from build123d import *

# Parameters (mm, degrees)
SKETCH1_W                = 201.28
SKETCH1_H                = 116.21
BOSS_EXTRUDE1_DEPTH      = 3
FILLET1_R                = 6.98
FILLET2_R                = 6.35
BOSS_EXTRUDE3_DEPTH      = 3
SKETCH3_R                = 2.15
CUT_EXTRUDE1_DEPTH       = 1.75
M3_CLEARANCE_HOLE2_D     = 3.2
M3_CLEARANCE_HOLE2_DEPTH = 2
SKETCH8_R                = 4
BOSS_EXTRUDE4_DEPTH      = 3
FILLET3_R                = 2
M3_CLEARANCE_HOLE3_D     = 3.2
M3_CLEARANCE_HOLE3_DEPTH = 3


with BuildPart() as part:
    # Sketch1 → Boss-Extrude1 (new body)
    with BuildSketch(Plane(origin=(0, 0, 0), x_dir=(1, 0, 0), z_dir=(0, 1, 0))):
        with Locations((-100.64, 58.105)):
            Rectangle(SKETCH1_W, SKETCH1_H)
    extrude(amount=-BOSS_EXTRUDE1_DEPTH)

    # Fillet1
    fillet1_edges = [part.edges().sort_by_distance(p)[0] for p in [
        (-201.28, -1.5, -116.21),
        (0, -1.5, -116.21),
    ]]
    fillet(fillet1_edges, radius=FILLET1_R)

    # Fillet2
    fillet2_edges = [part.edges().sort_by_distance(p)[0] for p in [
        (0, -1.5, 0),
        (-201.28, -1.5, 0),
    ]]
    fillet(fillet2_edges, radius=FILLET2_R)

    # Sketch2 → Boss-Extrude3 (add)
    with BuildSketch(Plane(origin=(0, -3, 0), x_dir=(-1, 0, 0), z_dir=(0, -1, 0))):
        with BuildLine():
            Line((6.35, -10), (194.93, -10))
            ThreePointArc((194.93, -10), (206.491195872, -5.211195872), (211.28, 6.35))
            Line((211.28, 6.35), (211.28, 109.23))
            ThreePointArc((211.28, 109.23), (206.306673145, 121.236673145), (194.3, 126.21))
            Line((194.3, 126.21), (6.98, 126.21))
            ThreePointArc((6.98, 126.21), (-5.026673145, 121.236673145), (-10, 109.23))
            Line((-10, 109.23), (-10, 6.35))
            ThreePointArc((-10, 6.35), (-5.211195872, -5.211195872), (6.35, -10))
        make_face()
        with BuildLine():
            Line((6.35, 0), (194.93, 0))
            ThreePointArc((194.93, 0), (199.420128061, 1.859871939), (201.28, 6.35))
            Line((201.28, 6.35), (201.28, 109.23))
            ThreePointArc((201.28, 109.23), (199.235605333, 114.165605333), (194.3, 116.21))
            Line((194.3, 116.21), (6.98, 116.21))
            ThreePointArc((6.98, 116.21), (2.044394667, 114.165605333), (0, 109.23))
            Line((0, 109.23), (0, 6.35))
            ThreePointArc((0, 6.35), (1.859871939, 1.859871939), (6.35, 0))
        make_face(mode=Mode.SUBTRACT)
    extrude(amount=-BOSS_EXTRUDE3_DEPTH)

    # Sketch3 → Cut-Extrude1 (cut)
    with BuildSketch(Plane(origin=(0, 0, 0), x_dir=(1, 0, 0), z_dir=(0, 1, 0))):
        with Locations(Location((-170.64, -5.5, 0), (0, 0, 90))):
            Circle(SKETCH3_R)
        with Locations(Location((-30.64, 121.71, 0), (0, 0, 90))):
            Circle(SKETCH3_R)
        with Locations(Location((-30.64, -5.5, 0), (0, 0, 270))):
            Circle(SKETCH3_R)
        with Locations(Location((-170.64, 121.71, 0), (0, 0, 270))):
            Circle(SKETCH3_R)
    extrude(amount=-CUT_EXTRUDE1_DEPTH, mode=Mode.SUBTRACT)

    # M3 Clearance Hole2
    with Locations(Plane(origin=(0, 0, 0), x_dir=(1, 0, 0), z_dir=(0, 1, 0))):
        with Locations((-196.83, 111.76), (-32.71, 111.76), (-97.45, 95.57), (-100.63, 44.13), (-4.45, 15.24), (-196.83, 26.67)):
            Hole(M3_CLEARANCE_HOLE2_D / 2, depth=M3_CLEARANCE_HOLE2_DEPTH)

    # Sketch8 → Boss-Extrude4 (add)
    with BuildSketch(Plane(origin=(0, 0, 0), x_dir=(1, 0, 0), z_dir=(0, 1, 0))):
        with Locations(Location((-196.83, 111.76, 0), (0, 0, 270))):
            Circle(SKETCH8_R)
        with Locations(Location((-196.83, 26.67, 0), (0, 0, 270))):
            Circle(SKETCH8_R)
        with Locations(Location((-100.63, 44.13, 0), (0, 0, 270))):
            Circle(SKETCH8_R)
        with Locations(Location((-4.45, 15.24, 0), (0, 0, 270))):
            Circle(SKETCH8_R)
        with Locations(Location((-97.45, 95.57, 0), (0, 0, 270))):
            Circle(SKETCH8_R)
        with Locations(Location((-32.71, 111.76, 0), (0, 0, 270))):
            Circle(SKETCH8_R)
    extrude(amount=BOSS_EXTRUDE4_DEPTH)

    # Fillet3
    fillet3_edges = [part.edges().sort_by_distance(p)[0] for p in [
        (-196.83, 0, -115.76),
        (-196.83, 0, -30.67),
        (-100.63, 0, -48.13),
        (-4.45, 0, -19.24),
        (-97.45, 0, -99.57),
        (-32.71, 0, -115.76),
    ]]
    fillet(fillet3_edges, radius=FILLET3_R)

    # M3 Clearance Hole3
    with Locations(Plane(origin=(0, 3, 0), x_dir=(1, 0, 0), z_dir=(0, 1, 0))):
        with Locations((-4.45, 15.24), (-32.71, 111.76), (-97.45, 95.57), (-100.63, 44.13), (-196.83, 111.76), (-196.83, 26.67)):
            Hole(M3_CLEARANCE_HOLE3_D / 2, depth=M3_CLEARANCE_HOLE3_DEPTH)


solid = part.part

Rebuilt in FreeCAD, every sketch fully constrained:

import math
import FreeCAD as App
import Part
import Sketcher


def edges_at(feature, points):
    """Names of the edges that pass closest to the given points."""
    edges = feature.Shape.Edges
    near = lambda p: min(range(len(edges)), key=lambda i: edges[i].distToShape(Part.Vertex(*p))[0])
    return sorted({f"Edge{near(p) + 1}" for p in points})


def add_polygon(sketch, points):
    """Adds a closed chain of lines whose ends are joined by coincident constraints."""
    first, n = sketch.GeometryCount, len(points)
    for a, b in zip(points, points[1:] + points[:1]):
        sketch.addGeometry(Part.LineSegment(App.Vector(*a, 0), App.Vector(*b, 0)), False)
    for i in range(n):
        sketch.addConstraint(Sketcher.Constraint("Coincident", first + i, 2, first + (i + 1) % n, 1))

doc = App.newDocument("Part")
params = doc.addObject("Spreadsheet::Sheet", "Params")
for row, (alias, value) in enumerate([
    ("sketch1_width", "201.28 mm"),
    ("sketch1_height", "116.21 mm"),
    ("pad1_length", "3 mm"),
    ("fillet_radius", "6.98 mm"),
    ("fillet2_radius", "6.35 mm"),
    ("sketch2_radius", "16.35 mm"),
    ("sketch2_radius2", "16.98 mm"),
    ("sketch2_radius3", "6.35 mm"),
    ("sketch2_width", "188.58 mm"),
    ("sketch2_height", "102.88 mm"),
    ("pad2_length", "3 mm"),
    ("sketch3_diameter", "4.3 mm"),
    ("pocket1_length", "1.75 mm"),
    ("sketch4_diameter", "3.2 mm"),
    ("hole_diameter", "3.2 mm"),
    ("hole_depth", "2 mm"),
    ("sketch5_diameter", "8 mm"),
    ("pad3_length", "3 mm"),
    ("fillet3_radius", "2 mm"),
    ("sketch6_diameter", "3.2 mm"),
    ("hole2_diameter", "3.2 mm"),
    ("hole2_depth", "3 mm"),
], start=1):
    params.set(f"A{row}", alias)
    params.set(f"B{row}", "=" + value)
    params.setAlias(f"B{row}", alias)

body = doc.addObject("PartDesign::Body", "Body")

sketch1 = body.newObject("Sketcher::SketchObject", "Sketch")
sketch1.AttachmentSupport = (doc.getObject("XZ_Plane"), [""])
sketch1.MapMode = "FlatFace"
add_polygon(sketch1, [(-201, -116), (-201, 0), (0, 0), (0, -116)])
sketch1.addConstraint([
    Sketcher.Constraint("Vertical", 0),
    Sketcher.Constraint("Horizontal", 1),
    Sketcher.Constraint("Vertical", 2),
    Sketcher.Constraint("Horizontal", 3),
    Sketcher.Constraint("Coincident", 1, 2, -1, 1),
    Sketcher.Constraint("DistanceX", 1, 1, 1, 2, 201.28),
    Sketcher.Constraint("DistanceY", 0, 1, 0, 2, 116.21),
])
sketch1.setExpression("Constraints[9]", "Params.sketch1_width")
sketch1.setExpression("Constraints[10]", "Params.sketch1_height")
pad1 = body.newObject("PartDesign::Pad", "Pad")
pad1.Profile = sketch1
pad1.setExpression("Length", "Params.pad1_length")
doc.recompute()

fillet = body.newObject("PartDesign::Fillet", "Fillet")
fillet.Base = (pad1, edges_at(pad1, [(-201.28, -1.5, -116.21), (0, -1.5, -116.21)]))
fillet.setExpression("Radius", "Params.fillet_radius")
doc.recompute()

fillet2 = body.newObject("PartDesign::Fillet", "Fillet001")
fillet2.Base = (fillet, edges_at(fillet, [(0, -1.5, 0), (-201.28, -1.5, 0)]))
fillet2.setExpression("Radius", "Params.fillet2_radius")

sketch2 = body.newObject("Sketcher::SketchObject", "Sketch001")
sketch2.AttachmentSupport = (doc.getObject("XZ_Plane"), [""])
sketch2.MapMode = "FlatFace"
sketch2.AttachmentOffset = App.Placement(App.Vector(0, 0, 3), App.Rotation())
sketch2.addGeometry([
    Part.LineSegment(App.Vector(-6, 10, 0), App.Vector(-195, 10, 0)),
    Part.ArcOfCircle(Part.Circle(App.Vector(-195, -6, 0), App.Vector(0, 0, 1), 16), math.radians(90), math.radians(180)),
    Part.LineSegment(App.Vector(-211, -6, 0), App.Vector(-211, -109, 0)),
    Part.ArcOfCircle(Part.Circle(App.Vector(-194, -109, 0), App.Vector(0, 0, 1), 17), math.radians(180), math.radians(270)),
    Part.LineSegment(App.Vector(-194, -126, 0), App.Vector(-7, -126, 0)),
    Part.ArcOfCircle(Part.Circle(App.Vector(-7, -109, 0), App.Vector(0, 0, 1), 17), math.radians(-90), math.radians(0)),
    Part.LineSegment(App.Vector(10, -109, 0), App.Vector(10, -6, 0)),
    Part.ArcOfCircle(Part.Circle(App.Vector(-6, -6, 0), App.Vector(0, 0, 1), 16), math.radians(0), math.radians(90)),
    Part.LineSegment(App.Vector(-195, 0, 0), App.Vector(-6, 0, 0)),
    Part.ArcOfCircle(Part.Circle(App.Vector(-6, -6, 0), App.Vector(0, 0, 1), 6), math.radians(0), math.radians(90)),
    Part.LineSegment(App.Vector(0, -6, 0), App.Vector(0, -109, 0)),
    Part.ArcOfCircle(Part.Circle(App.Vector(-7, -109, 0), App.Vector(0, 0, 1), 7), math.radians(-90), math.radians(0)),
    Part.LineSegment(App.Vector(-7, -116, 0), App.Vector(-194, -116, 0)),
    Part.ArcOfCircle(Part.Circle(App.Vector(-194, -109, 0), App.Vector(0, 0, 1), 7), math.radians(180), math.radians(270)),
    Part.LineSegment(App.Vector(-201, -109, 0), App.Vector(-201, -6, 0)),
    Part.ArcOfCircle(Part.Circle(App.Vector(-195, -6, 0), App.Vector(0, 0, 1), 6), math.radians(90), math.radians(180)),
], False)
sketch2.addConstraint([
    Sketcher.Constraint("Tangent", 0, 2, 1, 1),
    Sketcher.Constraint("Tangent", 1, 2, 2, 1),
    Sketcher.Constraint("Tangent", 2, 2, 3, 1),
    Sketcher.Constraint("Tangent", 3, 2, 4, 1),
    Sketcher.Constraint("Tangent", 4, 2, 5, 1),
    Sketcher.Constraint("Tangent", 5, 2, 6, 1),
    Sketcher.Constraint("Tangent", 6, 2, 7, 1),
    Sketcher.Constraint("Tangent", 7, 2, 0, 1),
    Sketcher.Constraint("Tangent", 8, 2, 9, 2),
    Sketcher.Constraint("Tangent", 9, 1, 10, 1),
    Sketcher.Constraint("Tangent", 10, 2, 11, 2),
    Sketcher.Constraint("Tangent", 11, 1, 12, 1),
    Sketcher.Constraint("Tangent", 12, 2, 13, 2),
    Sketcher.Constraint("Tangent", 13, 1, 14, 1),
    Sketcher.Constraint("Tangent", 14, 2, 15, 2),
    Sketcher.Constraint("Tangent", 15, 1, 8, 1),
    Sketcher.Constraint("Horizontal", 0),
    Sketcher.Constraint("Vertical", 2),
    Sketcher.Constraint("Horizontal", 4),
    Sketcher.Constraint("Vertical", 6),
    Sketcher.Constraint("Horizontal", 8),
    Sketcher.Constraint("Vertical", 10),
    Sketcher.Constraint("Horizontal", 12),
    Sketcher.Constraint("Vertical", 14),
    Sketcher.Constraint("Coincident", 9, 3, 7, 3),
    Sketcher.Constraint("Coincident", 11, 3, 5, 3),
    Sketcher.Constraint("Coincident", 13, 3, 3, 3),
    Sketcher.Constraint("Equal", 3, 5),
    Sketcher.Constraint("Equal", 1, 7),
    Sketcher.Constraint("Equal", 9, 15),
    Sketcher.Constraint("PointOnObject", 8, 2, -1),
    Sketcher.Constraint("PointOnObject", 9, 1, -2),
    Sketcher.Constraint("Radius", 1, 16.35),
    Sketcher.Constraint("Radius", 3, 16.98),
    Sketcher.Constraint("Radius", 9, 6.35),
    Sketcher.Constraint("DistanceX", 0, 2, 0, 1, 188.58),
    Sketcher.Constraint("DistanceY", 2, 2, 2, 1, 102.88),
])
sketch2.setExpression("Constraints[32]", "Params.sketch2_radius")
sketch2.setExpression("Constraints[33]", "Params.sketch2_radius2")
sketch2.setExpression("Constraints[34]", "Params.sketch2_radius3")
sketch2.setExpression("Constraints[35]", "Params.sketch2_width")
sketch2.setExpression("Constraints[36]", "Params.sketch2_height")
pad2 = body.newObject("PartDesign::Pad", "Pad001")
pad2.Profile = sketch2
pad2.setExpression("Length", "Params.pad2_length")
pad2.Reversed = True

sketch3 = body.newObject("Sketcher::SketchObject", "Sketch002")
sketch3.AttachmentSupport = (doc.getObject("XZ_Plane"), [""])
sketch3.MapMode = "FlatFace"
sketch3.addGeometry([
    Part.Circle(App.Vector(-170.6, 5.5, 0), App.Vector(0, 0, 1), 2.1),
    Part.Circle(App.Vector(-30.6, -121.7, 0), App.Vector(0, 0, 1), 2.1),
    Part.Circle(App.Vector(-30.6, 5.5, 0), App.Vector(0, 0, 1), 2.1),
    Part.Circle(App.Vector(-170.6, -121.7, 0), App.Vector(0, 0, 1), 2.1),
], False)
sketch3.addConstraint([
    Sketcher.Constraint("Equal", 0, 1),
    Sketcher.Constraint("Equal", 1, 2),
    Sketcher.Constraint("Equal", 2, 3),
    Sketcher.Constraint("Horizontal", 0, 3, 2, 3),
    Sketcher.Constraint("Horizontal", 1, 3, 3, 3),
    Sketcher.Constraint("Vertical", 1, 3, 2, 3),
    Sketcher.Constraint("Vertical", 0, 3, 3, 3),
    Sketcher.Constraint("Diameter", 0, 4.3),
    Sketcher.Constraint("DistanceX", 0, 3, 1, 3, 140.0),
    Sketcher.Constraint("DistanceY", -1, 1, 0, 3, 5.5),
    Sketcher.Constraint("DistanceX", 0, 3, -1, 1, 170.64),
    Sketcher.Constraint("DistanceY", 1, 3, -1, 1, 121.71),
])
sketch3.setExpression("Constraints[7]", "Params.sketch3_diameter")
pocket1 = body.newObject("PartDesign::Pocket", "Pocket")
pocket1.Profile = sketch3
pocket1.setExpression("Length", "Params.pocket1_length")
pocket1.Reversed = True

sketch4 = body.newObject("Sketcher::SketchObject", "Sketch003")
sketch4.AttachmentSupport = (doc.getObject("XZ_Plane"), [""])
sketch4.MapMode = "FlatFace"
sketch4.addGeometry([
    Part.Circle(App.Vector(-196.8, -111.8, 0), App.Vector(0, 0, 1), 1.6),
    Part.Circle(App.Vector(-32.7, -111.8, 0), App.Vector(0, 0, 1), 1.6),
    Part.Circle(App.Vector(-97.5, -95.6, 0), App.Vector(0, 0, 1), 1.6),
    Part.Circle(App.Vector(-100.6, -44.1, 0), App.Vector(0, 0, 1), 1.6),
    Part.Circle(App.Vector(-4.5, -15.2, 0), App.Vector(0, 0, 1), 1.6),
    Part.Circle(App.Vector(-196.8, -26.7, 0), App.Vector(0, 0, 1), 1.6),
], False)
sketch4.addConstraint([
    Sketcher.Constraint("Equal", 0, 1),
    Sketcher.Constraint("Equal", 1, 2),
    Sketcher.Constraint("Equal", 2, 3),
    Sketcher.Constraint("Equal", 3, 4),
    Sketcher.Constraint("Equal", 4, 5),
    Sketcher.Constraint("Horizontal", 0, 3, 1, 3),
    Sketcher.Constraint("Vertical", 0, 3, 5, 3),
    Sketcher.Constraint("Diameter", 0, 3.2),
    Sketcher.Constraint("DistanceX", 2, 3, 4, 3, 93.0),
    Sketcher.Constraint("DistanceX", 0, 3, 3, 3, 96.2),
    Sketcher.Constraint("DistanceY", 2, 3, 5, 3, 68.9),
    Sketcher.Constraint("DistanceX", 0, 3, -1, 1, 196.83),
    Sketcher.Constraint("DistanceY", 0, 3, -1, 1, 111.76),
    Sketcher.Constraint("DistanceX", 1, 3, -1, 1, 32.71),
    Sketcher.Constraint("DistanceX", 2, 3, -1, 1, 97.45),
    Sketcher.Constraint("DistanceY", 2, 3, -1, 1, 95.57),
    Sketcher.Constraint("DistanceY", 3, 3, -1, 1, 44.13),
    Sketcher.Constraint("DistanceY", 4, 3, -1, 1, 15.24),
])
sketch4.setExpression("Constraints[7]", "Params.sketch4_diameter")
doc.recompute()
hole = body.newObject("PartDesign::Hole", "Hole")
hole.Profile = sketch4
hole.ThreadType = "None"
hole.setExpression("Diameter", "Params.hole_diameter")
hole.DepthType = "Dimension"
hole.setExpression("Depth", "Params.hole_depth")
hole.DrillPoint = "Flat"
hole.Reversed = True

sketch5 = body.newObject("Sketcher::SketchObject", "Sketch004")
sketch5.AttachmentSupport = (doc.getObject("XZ_Plane"), [""])
sketch5.MapMode = "FlatFace"
sketch5.addGeometry([
    Part.Circle(App.Vector(-196.8, -111.8, 0), App.Vector(0, 0, 1), 4),
    Part.Circle(App.Vector(-196.8, -26.7, 0), App.Vector(0, 0, 1), 4),
    Part.Circle(App.Vector(-100.6, -44.1, 0), App.Vector(0, 0, 1), 4),
    Part.Circle(App.Vector(-4.5, -15.2, 0), App.Vector(0, 0, 1), 4),
    Part.Circle(App.Vector(-97.5, -95.6, 0), App.Vector(0, 0, 1), 4),
    Part.Circle(App.Vector(-32.7, -111.8, 0), App.Vector(0, 0, 1), 4),
], False)
sketch5.addConstraint([
    Sketcher.Constraint("Equal", 0, 1),
    Sketcher.Constraint("Equal", 1, 2),
    Sketcher.Constraint("Equal", 2, 3),
    Sketcher.Constraint("Equal", 3, 4),
    Sketcher.Constraint("Equal", 4, 5),
    Sketcher.Constraint("Horizontal", 0, 3, 5, 3),
    Sketcher.Constraint("Vertical", 0, 3, 1, 3),
    Sketcher.Constraint("Diameter", 0, 8.0),
    Sketcher.Constraint("DistanceX", 4, 3, 3, 3, 93.0),
    Sketcher.Constraint("DistanceX", 1, 3, 2, 3, 96.2),
    Sketcher.Constraint("DistanceY", 4, 3, 1, 3, 68.9),
    Sketcher.Constraint("DistanceX", 0, 3, -1, 1, 196.83),
    Sketcher.Constraint("DistanceY", 0, 3, -1, 1, 111.76),
    Sketcher.Constraint("DistanceY", 1, 3, -1, 1, 26.67),
    Sketcher.Constraint("DistanceY", 2, 3, -1, 1, 44.13),
    Sketcher.Constraint("DistanceX", 3, 3, -1, 1, 4.45),
    Sketcher.Constraint("DistanceY", 3, 3, -1, 1, 15.24),
    Sketcher.Constraint("DistanceX", 5, 3, -1, 1, 32.71),
])
sketch5.setExpression("Constraints[7]", "Params.sketch5_diameter")
pad3 = body.newObject("PartDesign::Pad", "Pad002")
pad3.Profile = sketch5
pad3.setExpression("Length", "Params.pad3_length")
pad3.Reversed = True
doc.recompute()

fillet3 = body.newObject("PartDesign::Fillet", "Fillet002")
fillet3.Base = (pad3, edges_at(pad3, [
    (-196.83, 0, -115.76),
    (-196.83, 0, -30.67),
    (-100.63, 0, -48.13),
    (-4.45, 0, -19.24),
    (-97.45, 0, -99.57),
    (-32.71, 0, -115.76),
]))
fillet3.setExpression("Radius", "Params.fillet3_radius")

sketch6 = body.newObject("Sketcher::SketchObject", "Sketch005")
sketch6.AttachmentSupport = (doc.getObject("XZ_Plane"), [""])
sketch6.MapMode = "FlatFace"
sketch6.AttachmentOffset = App.Placement(App.Vector(0, 0, -3), App.Rotation())
sketch6.addGeometry([
    Part.Circle(App.Vector(-4.5, -15.2, 0), App.Vector(0, 0, 1), 1.6),
    Part.Circle(App.Vector(-32.7, -111.8, 0), App.Vector(0, 0, 1), 1.6),
    Part.Circle(App.Vector(-97.5, -95.6, 0), App.Vector(0, 0, 1), 1.6),
    Part.Circle(App.Vector(-100.6, -44.1, 0), App.Vector(0, 0, 1), 1.6),
    Part.Circle(App.Vector(-196.8, -111.8, 0), App.Vector(0, 0, 1), 1.6),
    Part.Circle(App.Vector(-196.8, -26.7, 0), App.Vector(0, 0, 1), 1.6),
], False)
sketch6.addConstraint([
    Sketcher.Constraint("Equal", 0, 1),
    Sketcher.Constraint("Equal", 1, 2),
    Sketcher.Constraint("Equal", 2, 3),
    Sketcher.Constraint("Equal", 3, 4),
    Sketcher.Constraint("Equal", 4, 5),
    Sketcher.Constraint("Horizontal", 1, 3, 4, 3),
    Sketcher.Constraint("Vertical", 4, 3, 5, 3),
    Sketcher.Constraint("Diameter", 0, 3.2),
    Sketcher.Constraint("DistanceX", 2, 3, 0, 3, 93.0),
    Sketcher.Constraint("DistanceX", 4, 3, 3, 3, 96.2),
    Sketcher.Constraint("DistanceY", 2, 3, 5, 3, 68.9),
    Sketcher.Constraint("DistanceX", 0, 3, -1, 1, 4.45),
    Sketcher.Constraint("DistanceY", 0, 3, -1, 1, 15.24),
    Sketcher.Constraint("DistanceX", 1, 3, -1, 1, 32.71),
    Sketcher.Constraint("DistanceY", 1, 3, -1, 1, 111.76),
    Sketcher.Constraint("DistanceY", 2, 3, -1, 1, 95.57),
    Sketcher.Constraint("DistanceX", 3, 3, -1, 1, 100.63),
    Sketcher.Constraint("DistanceY", 3, 3, -1, 1, 44.13),
])
sketch6.setExpression("Constraints[7]", "Params.sketch6_diameter")
doc.recompute()
hole2 = body.newObject("PartDesign::Hole", "Hole001")
hole2.Profile = sketch6
hole2.ThreadType = "None"
hole2.setExpression("Diameter", "Params.hole2_diameter")
hole2.DepthType = "Dimension"
hole2.setExpression("Depth", "Params.hole2_depth")
hole2.DrillPoint = "Flat"
hole2.Reversed = True

doc.recompute()
